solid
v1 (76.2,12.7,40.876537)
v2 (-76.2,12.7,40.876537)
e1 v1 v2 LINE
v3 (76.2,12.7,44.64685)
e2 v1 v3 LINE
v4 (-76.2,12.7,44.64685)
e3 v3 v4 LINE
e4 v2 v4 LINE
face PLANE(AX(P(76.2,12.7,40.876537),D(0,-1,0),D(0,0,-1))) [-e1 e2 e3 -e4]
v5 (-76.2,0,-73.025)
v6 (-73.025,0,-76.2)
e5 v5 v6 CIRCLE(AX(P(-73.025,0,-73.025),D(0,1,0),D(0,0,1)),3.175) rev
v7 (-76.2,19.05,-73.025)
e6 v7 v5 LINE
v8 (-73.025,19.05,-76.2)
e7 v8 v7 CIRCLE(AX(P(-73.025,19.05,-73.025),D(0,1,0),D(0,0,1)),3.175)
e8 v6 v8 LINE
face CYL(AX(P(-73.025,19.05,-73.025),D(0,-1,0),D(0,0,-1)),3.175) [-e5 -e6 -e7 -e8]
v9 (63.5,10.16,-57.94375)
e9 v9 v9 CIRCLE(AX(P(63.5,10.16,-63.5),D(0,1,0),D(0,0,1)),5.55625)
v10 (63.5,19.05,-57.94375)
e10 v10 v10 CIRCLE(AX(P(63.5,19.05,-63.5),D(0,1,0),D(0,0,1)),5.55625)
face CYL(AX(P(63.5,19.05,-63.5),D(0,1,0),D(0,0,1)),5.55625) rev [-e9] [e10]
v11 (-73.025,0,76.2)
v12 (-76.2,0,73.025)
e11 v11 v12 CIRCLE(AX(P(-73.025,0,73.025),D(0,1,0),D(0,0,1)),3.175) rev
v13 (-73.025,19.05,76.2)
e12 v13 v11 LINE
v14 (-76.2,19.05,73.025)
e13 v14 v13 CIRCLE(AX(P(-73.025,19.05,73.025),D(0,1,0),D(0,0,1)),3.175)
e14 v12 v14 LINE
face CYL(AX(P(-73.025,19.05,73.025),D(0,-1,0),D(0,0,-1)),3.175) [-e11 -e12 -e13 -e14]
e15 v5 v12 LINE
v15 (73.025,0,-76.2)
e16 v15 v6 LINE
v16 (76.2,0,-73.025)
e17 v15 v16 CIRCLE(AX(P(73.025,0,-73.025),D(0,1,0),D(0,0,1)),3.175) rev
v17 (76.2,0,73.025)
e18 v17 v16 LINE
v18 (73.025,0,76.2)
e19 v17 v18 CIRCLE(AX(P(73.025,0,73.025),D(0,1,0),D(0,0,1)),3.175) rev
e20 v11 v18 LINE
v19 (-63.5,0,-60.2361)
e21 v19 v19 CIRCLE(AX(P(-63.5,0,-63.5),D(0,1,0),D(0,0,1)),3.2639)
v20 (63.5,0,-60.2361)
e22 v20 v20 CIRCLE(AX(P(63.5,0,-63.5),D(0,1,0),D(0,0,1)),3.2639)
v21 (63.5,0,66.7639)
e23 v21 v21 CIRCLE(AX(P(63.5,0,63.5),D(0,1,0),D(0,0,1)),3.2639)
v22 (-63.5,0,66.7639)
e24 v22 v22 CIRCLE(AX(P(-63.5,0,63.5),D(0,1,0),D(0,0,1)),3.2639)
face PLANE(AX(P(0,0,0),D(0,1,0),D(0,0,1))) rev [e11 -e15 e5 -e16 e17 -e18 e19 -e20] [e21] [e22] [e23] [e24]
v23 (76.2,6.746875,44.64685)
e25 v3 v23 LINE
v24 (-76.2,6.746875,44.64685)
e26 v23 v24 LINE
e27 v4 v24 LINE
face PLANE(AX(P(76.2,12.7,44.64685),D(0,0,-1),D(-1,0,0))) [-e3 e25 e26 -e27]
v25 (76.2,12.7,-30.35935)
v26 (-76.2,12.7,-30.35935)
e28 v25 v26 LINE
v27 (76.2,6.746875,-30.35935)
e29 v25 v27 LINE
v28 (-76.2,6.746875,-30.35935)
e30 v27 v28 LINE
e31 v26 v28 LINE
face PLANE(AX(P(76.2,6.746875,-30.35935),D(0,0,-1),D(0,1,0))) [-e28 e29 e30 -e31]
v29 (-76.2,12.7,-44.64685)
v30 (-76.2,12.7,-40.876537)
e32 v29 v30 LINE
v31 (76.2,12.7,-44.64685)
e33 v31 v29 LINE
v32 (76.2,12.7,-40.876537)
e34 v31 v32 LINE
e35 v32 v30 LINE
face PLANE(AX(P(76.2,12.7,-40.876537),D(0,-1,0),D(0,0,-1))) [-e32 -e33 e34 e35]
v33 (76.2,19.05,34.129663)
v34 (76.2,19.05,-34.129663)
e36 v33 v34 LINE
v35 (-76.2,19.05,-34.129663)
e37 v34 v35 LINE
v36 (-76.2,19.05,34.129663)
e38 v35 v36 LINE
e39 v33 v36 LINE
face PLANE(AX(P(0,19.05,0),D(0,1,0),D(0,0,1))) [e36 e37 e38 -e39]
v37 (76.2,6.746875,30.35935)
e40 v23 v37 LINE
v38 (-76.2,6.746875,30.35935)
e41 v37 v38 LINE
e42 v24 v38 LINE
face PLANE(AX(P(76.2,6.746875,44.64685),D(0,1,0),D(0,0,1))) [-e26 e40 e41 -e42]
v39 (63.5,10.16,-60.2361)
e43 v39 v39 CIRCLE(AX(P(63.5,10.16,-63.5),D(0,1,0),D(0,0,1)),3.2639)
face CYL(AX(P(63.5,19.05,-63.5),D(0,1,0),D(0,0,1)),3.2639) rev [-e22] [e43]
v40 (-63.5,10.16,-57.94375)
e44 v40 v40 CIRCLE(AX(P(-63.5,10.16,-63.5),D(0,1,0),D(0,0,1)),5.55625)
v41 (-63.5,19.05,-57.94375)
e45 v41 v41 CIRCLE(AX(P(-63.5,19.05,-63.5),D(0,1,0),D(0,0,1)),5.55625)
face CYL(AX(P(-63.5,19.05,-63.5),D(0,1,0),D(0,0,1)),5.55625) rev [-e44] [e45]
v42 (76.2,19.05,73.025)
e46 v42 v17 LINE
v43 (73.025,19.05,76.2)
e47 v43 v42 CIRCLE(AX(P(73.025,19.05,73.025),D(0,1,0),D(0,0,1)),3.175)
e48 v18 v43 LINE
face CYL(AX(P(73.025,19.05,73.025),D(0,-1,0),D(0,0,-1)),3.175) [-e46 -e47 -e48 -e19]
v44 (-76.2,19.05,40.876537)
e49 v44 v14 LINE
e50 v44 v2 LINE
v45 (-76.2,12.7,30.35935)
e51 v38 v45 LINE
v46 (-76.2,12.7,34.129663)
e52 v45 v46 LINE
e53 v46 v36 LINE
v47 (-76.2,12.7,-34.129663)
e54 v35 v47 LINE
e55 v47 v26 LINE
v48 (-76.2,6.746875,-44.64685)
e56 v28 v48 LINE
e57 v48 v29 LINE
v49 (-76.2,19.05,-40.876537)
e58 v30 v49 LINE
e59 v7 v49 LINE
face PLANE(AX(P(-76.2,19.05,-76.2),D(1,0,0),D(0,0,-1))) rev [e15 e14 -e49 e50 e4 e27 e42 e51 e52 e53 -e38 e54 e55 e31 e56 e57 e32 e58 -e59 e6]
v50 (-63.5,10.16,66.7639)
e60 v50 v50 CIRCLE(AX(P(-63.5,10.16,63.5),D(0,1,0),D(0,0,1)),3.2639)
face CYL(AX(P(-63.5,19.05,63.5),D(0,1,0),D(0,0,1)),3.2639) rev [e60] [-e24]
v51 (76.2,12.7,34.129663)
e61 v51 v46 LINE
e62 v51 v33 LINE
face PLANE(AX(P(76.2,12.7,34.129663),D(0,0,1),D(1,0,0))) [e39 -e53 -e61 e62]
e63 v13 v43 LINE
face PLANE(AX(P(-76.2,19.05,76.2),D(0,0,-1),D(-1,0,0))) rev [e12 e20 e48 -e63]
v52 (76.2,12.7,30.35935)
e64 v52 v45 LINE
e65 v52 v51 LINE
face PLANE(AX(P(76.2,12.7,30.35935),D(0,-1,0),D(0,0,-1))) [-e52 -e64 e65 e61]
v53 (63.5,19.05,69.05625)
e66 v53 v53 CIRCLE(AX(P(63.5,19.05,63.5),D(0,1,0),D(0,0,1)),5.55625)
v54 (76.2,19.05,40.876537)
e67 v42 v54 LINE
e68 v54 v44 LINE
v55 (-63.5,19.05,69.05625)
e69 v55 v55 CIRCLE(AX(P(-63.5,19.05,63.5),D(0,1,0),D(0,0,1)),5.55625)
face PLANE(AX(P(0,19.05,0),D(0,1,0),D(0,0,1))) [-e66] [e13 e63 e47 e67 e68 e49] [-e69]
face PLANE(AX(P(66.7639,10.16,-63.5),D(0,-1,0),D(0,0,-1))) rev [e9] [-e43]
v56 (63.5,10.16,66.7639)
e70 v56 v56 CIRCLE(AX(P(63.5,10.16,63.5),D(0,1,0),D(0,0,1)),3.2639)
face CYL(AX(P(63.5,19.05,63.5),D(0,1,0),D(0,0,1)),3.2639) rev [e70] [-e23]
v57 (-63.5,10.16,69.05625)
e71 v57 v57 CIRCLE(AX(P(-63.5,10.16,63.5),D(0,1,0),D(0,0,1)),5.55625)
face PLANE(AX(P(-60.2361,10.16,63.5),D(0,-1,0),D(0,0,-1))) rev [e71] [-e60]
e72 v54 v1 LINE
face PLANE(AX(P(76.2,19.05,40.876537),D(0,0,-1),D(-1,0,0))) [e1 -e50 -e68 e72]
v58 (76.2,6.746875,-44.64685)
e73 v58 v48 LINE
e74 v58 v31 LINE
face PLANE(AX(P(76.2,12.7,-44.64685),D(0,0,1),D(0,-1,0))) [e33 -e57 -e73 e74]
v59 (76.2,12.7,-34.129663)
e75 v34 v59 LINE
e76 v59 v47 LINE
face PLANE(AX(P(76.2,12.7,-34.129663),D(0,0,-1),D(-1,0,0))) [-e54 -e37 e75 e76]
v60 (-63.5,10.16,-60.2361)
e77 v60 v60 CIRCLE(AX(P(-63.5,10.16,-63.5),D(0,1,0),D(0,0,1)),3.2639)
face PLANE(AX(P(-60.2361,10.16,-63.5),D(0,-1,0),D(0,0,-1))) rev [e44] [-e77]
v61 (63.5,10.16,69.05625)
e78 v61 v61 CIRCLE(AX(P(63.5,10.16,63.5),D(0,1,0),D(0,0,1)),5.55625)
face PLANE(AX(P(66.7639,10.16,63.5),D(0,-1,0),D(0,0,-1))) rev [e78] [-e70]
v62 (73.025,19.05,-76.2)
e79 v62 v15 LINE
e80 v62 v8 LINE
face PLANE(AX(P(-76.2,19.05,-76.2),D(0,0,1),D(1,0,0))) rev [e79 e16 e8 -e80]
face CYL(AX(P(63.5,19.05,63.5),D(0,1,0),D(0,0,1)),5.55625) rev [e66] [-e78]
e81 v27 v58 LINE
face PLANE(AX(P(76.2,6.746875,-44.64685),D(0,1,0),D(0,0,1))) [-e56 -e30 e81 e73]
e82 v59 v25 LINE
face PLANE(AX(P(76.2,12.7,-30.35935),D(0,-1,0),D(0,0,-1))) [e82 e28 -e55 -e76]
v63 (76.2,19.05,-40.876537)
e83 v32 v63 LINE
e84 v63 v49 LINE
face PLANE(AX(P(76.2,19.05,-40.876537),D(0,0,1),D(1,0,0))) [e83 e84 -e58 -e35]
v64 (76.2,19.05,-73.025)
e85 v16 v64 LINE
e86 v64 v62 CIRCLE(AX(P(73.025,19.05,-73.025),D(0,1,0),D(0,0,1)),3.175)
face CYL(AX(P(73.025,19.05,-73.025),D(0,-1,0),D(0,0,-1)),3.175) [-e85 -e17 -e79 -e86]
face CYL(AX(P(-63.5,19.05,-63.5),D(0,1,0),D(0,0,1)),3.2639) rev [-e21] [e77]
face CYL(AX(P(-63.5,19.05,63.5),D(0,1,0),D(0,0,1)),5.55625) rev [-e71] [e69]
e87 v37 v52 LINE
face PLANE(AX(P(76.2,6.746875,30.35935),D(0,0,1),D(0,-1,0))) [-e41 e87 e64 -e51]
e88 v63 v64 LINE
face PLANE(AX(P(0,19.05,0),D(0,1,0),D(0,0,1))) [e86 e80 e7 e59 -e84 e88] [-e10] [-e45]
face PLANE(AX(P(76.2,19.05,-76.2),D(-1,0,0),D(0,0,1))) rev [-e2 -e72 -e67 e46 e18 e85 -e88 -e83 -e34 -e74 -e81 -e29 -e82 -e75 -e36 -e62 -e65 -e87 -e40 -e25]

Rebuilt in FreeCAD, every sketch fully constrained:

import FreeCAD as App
import Part
import Sketcher
from FreeCAD import Vector
Q = App.Units.Quantity


def edges_at(feature, points):
    """Names of the edges that pass closest to the given points."""
    edges = feature.Shape.Edges
    near = lambda p: min(range(len(edges)), key=lambda i: edges[i].distToShape(Part.Vertex(*p))[0])
    return sorted({f"Edge{near(p) + 1}" for p in points})


def add_polygon(sketch, points):
    """Adds a closed chain of lines whose ends are joined by coincident constraints."""
    first, n = sketch.GeometryCount, len(points)
    for a, b in zip(points, points[1:] + points[:1]):
        sketch.addGeometry(Part.LineSegment(App.Vector(*a, 0), App.Vector(*b, 0)), False)
    for i in range(n):
        sketch.addConstraint(Sketcher.Constraint("Coincident", first + i, 2, first + (i + 1) % n, 1))

doc = App.newDocument("Part")
params = doc.addObject("Spreadsheet::Sheet", "Params")
for row, (alias, value) in enumerate([
    ("sketch1_width", "6 in"),
    ("pad1_length", "0.75 in"),
    ("sketch2_diameter", "0.257 in"),
    ("hole_diameter", "0.257 in"),
    ("hole_cbore_diameter", "0.4375 in"),
    ("hole_cbore_depth", "0.35 in"),
    ("sketch3_width", "0.25 in"),
    ("sketch3_width2", "0.234375 in"),
    ("sketch3_height", "0.5625 in"),
    ("sketch3_height2", "0.265625 in"),
    ("fillet_radius", "0.125 in"),
], start=1):
    params.set(f"A{row}", alias)
    params.set(f"B{row}", "=" + value)
    params.setAlias(f"B{row}", alias)

body = doc.addObject("PartDesign::Body", "Body")

sketch1 = body.newObject("Sketcher::SketchObject", "Sketch")
sketch1.AttachmentSupport = (doc.getObject("XZ_Plane"), [""])
sketch1.MapMode = "FlatFace"
add_polygon(sketch1, [(-76, -76), (-76, 76), (76, 76), (76, -76)])
sketch1.addConstraint([
    Sketcher.Constraint("Vertical", 0),
    Sketcher.Constraint("Horizontal", 1),
    Sketcher.Constraint("Vertical", 2),
    Sketcher.Constraint("Horizontal", 3),
    Sketcher.Constraint("Symmetric", 0, 2, 2, 2, -1, 1),
    Sketcher.Constraint("Equal", 3, 0),
    Sketcher.Constraint("DistanceX", 1, 1, 1, 2, Q("6 in")),
])
sketch1.setExpression("Constraints[10]", "Params.sketch1_width")
pad1 = body.newObject("PartDesign::Pad", "Pad")
pad1.Profile = sketch1
pad1.setExpression("Length", "Params.pad1_length")
pad1.Reversed = True

sketch2 = body.newObject("Sketcher::SketchObject", "Sketch001")
sketch2.AttachmentSupport = (doc.getObject("XZ_Plane"), [""])
sketch2.MapMode = "FlatFace"
sketch2.AttachmentOffset = App.Placement(Vector(0, 0, -0.75 * 25.4), App.Rotation())
sketch2.addGeometry([
    Part.Circle(Vector(-63.5, -63.5, 0), Vector(0, 0, 1), 3.3),
    Part.Circle(Vector(63.5, -63.5, 0), Vector(0, 0, 1), 3.3),
    Part.Circle(Vector(63.5, 63.5, 0), Vector(0, 0, 1), 3.3),
    Part.Circle(Vector(-63.5, 63.5, 0), Vector(0, 0, 1), 3.3),
], False)
sketch2.addConstraint([
    Sketcher.Constraint("Equal", 0, 1),
    Sketcher.Constraint("Equal", 1, 2),
    Sketcher.Constraint("Equal", 2, 3),
    Sketcher.Constraint("Symmetric", 0, 3, 2, 3, -1, 1),
    Sketcher.Constraint("Symmetric", 1, 3, 3, 3, -1, 1),
    Sketcher.Constraint("Symmetric", 0, 3, 1, 3, -2),
    Sketcher.Constraint("Diameter", 0, Q("0.257 in")),
    Sketcher.Constraint("DistanceX", 0, 3, 1, 3, Q("5 in")),
    Sketcher.Constraint("DistanceY", 1, 3, 2, 3, Q("5 in")),
])
sketch2.setExpression("Constraints[6]", "Params.sketch2_diameter")
doc.recompute()
hole = body.newObject("PartDesign::Hole", "Hole")
hole.Profile = sketch2
hole.ThreadType = "None"
hole.setExpression("Diameter", "Params.hole_diameter")
hole.DepthType = "ThroughAll"
hole.HoleCutType = "Counterbore"
hole.setExpression("HoleCutDiameter", "Params.hole_cbore_diameter")
hole.setExpression("HoleCutDepth", "Params.hole_cbore_depth")
hole.Reversed = True

sketch3 = body.newObject("Sketcher::SketchObject", "Sketch002")
sketch3.AttachmentSupport = (doc.getObject("YZ_Plane"), [""])
sketch3.MapMode = "FlatFace"
sketch3.AttachmentOffset = App.Placement(Vector(0, 0, -3 * 25.4), App.Rotation())
add_polygon(sketch3, [(19.1, 40.9), (12.7, 40.9), (12.7, 44.6), (6.7, 44.6), (6.7, 30.4), (12.7, 30.4), (12.7, 34.1), (19.1, 34.1)])
add_polygon(sketch3, [(19.1, -34.1), (12.7, -34.1), (12.7, -30.4), (6.7, -30.4), (6.7, -44.6), (12.7, -44.6), (12.7, -40.9), (19.1, -40.9)])
sketch3.addConstraint([
    Sketcher.Constraint("Horizontal", 0),
    Sketcher.Constraint("Vertical", 1),
    Sketcher.Constraint("Horizontal", 2),
    Sketcher.Constraint("Vertical", 3),
    Sketcher.Constraint("Horizontal", 4),
    Sketcher.Constraint("Vertical", 5),
    Sketcher.Constraint("Horizontal", 6),
    Sketcher.Constraint("Vertical", 7),
    Sketcher.Constraint("Horizontal", 8),
    Sketcher.Constraint("Vertical", 9),
    Sketcher.Constraint("Horizontal", 10),
    Sketcher.Constraint("Vertical", 11),
    Sketcher.Constraint("Horizontal", 12),
    Sketcher.Constraint("Vertical", 13),
    Sketcher.Constraint("Horizontal", 14),
    Sketcher.Constraint("Vertical", 15),
    Sketcher.Constraint("Symmetric", 5, 2, 8, 2, -1),
    Sketcher.Constraint("Symmetric", 3, 2, 10, 2, -1),
    Sketcher.Constraint("Symmetric", 1, 2, 12, 2, -1),
    Sketcher.Constraint("Symmetric", 7, 2, 14, 2, -1),
    Sketcher.Constraint("Vertical", 1, 2, 4, 2),
    Sketcher.Constraint("Equal", 1, 5),
    Sketcher.Constraint("DistanceX", 0, 2, 0, 1, Q("0.25 in")),
    Sketcher.Constraint("DistanceX", -1, 1, 0, 2, Q("0.5 in")),
    Sketcher.Constraint("DistanceX", 2, 2, 2, 1, Q("0.234375 in")),
    Sketcher.Constraint("DistanceY", 3, 2, 3, 1, Q("0.5625 in")),
    Sketcher.Constraint("DistanceY", 7, 1, 7, 2, Q("0.265625 in")),
    Sketcher.Constraint("DistanceY", 8, 2, 0, 2, Q("2.953 in")),
])
sketch3.setExpression("Constraints[38]", "Params.sketch3_width")
sketch3.setExpression("Constraints[40]", "Params.sketch3_width2")
sketch3.setExpression("Constraints[41]", "Params.sketch3_height")
sketch3.setExpression("Constraints[42]", "Params.sketch3_height2")
pocket1 = body.newObject("PartDesign::Pocket", "Pocket")
pocket1.Profile = sketch3
pocket1.Type = "ThroughAll"
pocket1.Reversed = True
doc.recompute()

fillet = body.newObject("PartDesign::Fillet", "Fillet")
fillet.Base = (pocket1, edges_at(pocket1, [
    (76.2, 9.525, 76.2),
    (-76.2, 9.525, 76.2),
    (-76.2, 9.525, -76.2),
    (76.2, 9.525, -76.2),
]))
fillet.setExpression("Radius", "Params.fillet_radius")

doc.recompute()
